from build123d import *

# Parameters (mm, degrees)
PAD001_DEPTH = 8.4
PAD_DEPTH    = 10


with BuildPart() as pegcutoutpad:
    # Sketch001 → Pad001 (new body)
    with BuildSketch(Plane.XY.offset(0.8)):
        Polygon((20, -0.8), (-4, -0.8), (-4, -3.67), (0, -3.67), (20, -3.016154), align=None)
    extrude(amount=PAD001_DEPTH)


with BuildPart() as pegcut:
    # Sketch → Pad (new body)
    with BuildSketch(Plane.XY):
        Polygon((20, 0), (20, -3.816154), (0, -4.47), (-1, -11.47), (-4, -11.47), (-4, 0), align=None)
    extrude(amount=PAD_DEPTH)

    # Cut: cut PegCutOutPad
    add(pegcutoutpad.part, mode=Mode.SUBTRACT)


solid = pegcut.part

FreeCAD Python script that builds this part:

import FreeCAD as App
import Part
import Sketcher

V = App.Vector
Q = App.Units.Quantity


def add_polygon(sketch, points):
    """Adds a closed chain of lines whose ends are joined by coincident constraints."""
    first, n = sketch.GeometryCount, len(points)
    for a, b in zip(points, points[1:] + points[:1]):
        sketch.addGeometry(Part.LineSegment(App.Vector(*a, 0), App.Vector(*b, 0)), False)
    for i in range(n):
        sketch.addConstraint(Sketcher.Constraint("Coincident", first + i, 2, first + (i + 1) % n, 1))

doc = App.newDocument("Part")
body = doc.addObject("PartDesign::Body", "Body")

# Sketch on XY plane
sketch1 = body.newObject("Sketcher::SketchObject", "Sketch")
sketch1.AttachmentSupport = (doc.getObject("XY_Plane"), [""])
sketch1.MapMode = "FlatFace"
sketch1.AttachmentOffset = App.Placement(V(0, 0, 0.8), App.Rotation())
add_polygon(sketch1, [(20, -0.8), (-4, -0.8), (-4, -3.7), (0, -3.7), (20, -3)])  # lines 0-4
sketch1.addConstraint([
    Sketcher.Constraint("Horizontal", 0),
    Sketcher.Constraint("Vertical", 1),
    Sketcher.Constraint("Horizontal", 2),
    Sketcher.Constraint("Vertical", 4),
    Sketcher.Constraint("PointOnObject", 2, 2, -2),
    Sketcher.Constraint("DistanceX", 0, 2, 0, 1, Q("24 mm")),
    Sketcher.Constraint("DistanceX", 2, 1, 2, 2, Q("4 mm")),
    Sketcher.Constraint("DistanceY", 1, 2, 1, 1, Q("2.87 mm")),
    Sketcher.Constraint("DistanceY", 0, 2, -1, 1, Q("0.8 mm")),
    Sketcher.Constraint("DistanceY", 4, 1, 4, 2, Q("2.216154 mm")),
])
pad1 = body.newObject("PartDesign::Pad", "Pad")
pad1.Profile = sketch1
pad1.Length = 8.4
body2 = doc.addObject("PartDesign::Body", "Body001")

# Sketch on XY plane
sketch2 = body2.newObject("Sketcher::SketchObject", "Sketch001")
sketch2.AttachmentSupport = (doc.getObject("XY_Plane001"), [""])
sketch2.MapMode = "FlatFace"
add_polygon(sketch2, [(20, -3.8), (20, 0), (-4, 0), (-4, -11.5), (-1, -11.5), (0, -4.5)])  # lines 0-5
sketch2.addConstraint([
    Sketcher.Constraint("Vertical", 0),
    Sketcher.Constraint("Horizontal", 1),
    Sketcher.Constraint("Vertical", 2),
    Sketcher.Constraint("Horizontal", 3),
    Sketcher.Constraint("PointOnObject", 0, 2, -1),
    Sketcher.Constraint("PointOnObject", 4, 2, -2),
    Sketcher.Constraint("DistanceX", 1, 2, 1, 1, Q("24 mm")),
    Sketcher.Constraint("DistanceX", 3, 1, 3, 2, Q("3 mm")),
    Sketcher.Constraint("DistanceX", -1, 1, 0, 2, Q("20 mm")),
    Sketcher.Constraint("DistanceY", 3, 2, 4, 2, Q("7 mm")),
    Sketcher.Constraint("DistanceY", 2, 2, 2, 1, Q("11.47 mm")),
    Sketcher.Constraint("DistanceY", 0, 1, 0, 2, Q("3.816154 mm")),
])
pad2 = body2.newObject("PartDesign::Pad", "Pad001")
pad2.Profile = sketch2
pad2.Length = 10
doc.recompute()

boolean = body2.newObject("PartDesign::Boolean", "Boolean")
boolean.Type = "Cut"
boolean.addObjects([body])

doc.recompute()
